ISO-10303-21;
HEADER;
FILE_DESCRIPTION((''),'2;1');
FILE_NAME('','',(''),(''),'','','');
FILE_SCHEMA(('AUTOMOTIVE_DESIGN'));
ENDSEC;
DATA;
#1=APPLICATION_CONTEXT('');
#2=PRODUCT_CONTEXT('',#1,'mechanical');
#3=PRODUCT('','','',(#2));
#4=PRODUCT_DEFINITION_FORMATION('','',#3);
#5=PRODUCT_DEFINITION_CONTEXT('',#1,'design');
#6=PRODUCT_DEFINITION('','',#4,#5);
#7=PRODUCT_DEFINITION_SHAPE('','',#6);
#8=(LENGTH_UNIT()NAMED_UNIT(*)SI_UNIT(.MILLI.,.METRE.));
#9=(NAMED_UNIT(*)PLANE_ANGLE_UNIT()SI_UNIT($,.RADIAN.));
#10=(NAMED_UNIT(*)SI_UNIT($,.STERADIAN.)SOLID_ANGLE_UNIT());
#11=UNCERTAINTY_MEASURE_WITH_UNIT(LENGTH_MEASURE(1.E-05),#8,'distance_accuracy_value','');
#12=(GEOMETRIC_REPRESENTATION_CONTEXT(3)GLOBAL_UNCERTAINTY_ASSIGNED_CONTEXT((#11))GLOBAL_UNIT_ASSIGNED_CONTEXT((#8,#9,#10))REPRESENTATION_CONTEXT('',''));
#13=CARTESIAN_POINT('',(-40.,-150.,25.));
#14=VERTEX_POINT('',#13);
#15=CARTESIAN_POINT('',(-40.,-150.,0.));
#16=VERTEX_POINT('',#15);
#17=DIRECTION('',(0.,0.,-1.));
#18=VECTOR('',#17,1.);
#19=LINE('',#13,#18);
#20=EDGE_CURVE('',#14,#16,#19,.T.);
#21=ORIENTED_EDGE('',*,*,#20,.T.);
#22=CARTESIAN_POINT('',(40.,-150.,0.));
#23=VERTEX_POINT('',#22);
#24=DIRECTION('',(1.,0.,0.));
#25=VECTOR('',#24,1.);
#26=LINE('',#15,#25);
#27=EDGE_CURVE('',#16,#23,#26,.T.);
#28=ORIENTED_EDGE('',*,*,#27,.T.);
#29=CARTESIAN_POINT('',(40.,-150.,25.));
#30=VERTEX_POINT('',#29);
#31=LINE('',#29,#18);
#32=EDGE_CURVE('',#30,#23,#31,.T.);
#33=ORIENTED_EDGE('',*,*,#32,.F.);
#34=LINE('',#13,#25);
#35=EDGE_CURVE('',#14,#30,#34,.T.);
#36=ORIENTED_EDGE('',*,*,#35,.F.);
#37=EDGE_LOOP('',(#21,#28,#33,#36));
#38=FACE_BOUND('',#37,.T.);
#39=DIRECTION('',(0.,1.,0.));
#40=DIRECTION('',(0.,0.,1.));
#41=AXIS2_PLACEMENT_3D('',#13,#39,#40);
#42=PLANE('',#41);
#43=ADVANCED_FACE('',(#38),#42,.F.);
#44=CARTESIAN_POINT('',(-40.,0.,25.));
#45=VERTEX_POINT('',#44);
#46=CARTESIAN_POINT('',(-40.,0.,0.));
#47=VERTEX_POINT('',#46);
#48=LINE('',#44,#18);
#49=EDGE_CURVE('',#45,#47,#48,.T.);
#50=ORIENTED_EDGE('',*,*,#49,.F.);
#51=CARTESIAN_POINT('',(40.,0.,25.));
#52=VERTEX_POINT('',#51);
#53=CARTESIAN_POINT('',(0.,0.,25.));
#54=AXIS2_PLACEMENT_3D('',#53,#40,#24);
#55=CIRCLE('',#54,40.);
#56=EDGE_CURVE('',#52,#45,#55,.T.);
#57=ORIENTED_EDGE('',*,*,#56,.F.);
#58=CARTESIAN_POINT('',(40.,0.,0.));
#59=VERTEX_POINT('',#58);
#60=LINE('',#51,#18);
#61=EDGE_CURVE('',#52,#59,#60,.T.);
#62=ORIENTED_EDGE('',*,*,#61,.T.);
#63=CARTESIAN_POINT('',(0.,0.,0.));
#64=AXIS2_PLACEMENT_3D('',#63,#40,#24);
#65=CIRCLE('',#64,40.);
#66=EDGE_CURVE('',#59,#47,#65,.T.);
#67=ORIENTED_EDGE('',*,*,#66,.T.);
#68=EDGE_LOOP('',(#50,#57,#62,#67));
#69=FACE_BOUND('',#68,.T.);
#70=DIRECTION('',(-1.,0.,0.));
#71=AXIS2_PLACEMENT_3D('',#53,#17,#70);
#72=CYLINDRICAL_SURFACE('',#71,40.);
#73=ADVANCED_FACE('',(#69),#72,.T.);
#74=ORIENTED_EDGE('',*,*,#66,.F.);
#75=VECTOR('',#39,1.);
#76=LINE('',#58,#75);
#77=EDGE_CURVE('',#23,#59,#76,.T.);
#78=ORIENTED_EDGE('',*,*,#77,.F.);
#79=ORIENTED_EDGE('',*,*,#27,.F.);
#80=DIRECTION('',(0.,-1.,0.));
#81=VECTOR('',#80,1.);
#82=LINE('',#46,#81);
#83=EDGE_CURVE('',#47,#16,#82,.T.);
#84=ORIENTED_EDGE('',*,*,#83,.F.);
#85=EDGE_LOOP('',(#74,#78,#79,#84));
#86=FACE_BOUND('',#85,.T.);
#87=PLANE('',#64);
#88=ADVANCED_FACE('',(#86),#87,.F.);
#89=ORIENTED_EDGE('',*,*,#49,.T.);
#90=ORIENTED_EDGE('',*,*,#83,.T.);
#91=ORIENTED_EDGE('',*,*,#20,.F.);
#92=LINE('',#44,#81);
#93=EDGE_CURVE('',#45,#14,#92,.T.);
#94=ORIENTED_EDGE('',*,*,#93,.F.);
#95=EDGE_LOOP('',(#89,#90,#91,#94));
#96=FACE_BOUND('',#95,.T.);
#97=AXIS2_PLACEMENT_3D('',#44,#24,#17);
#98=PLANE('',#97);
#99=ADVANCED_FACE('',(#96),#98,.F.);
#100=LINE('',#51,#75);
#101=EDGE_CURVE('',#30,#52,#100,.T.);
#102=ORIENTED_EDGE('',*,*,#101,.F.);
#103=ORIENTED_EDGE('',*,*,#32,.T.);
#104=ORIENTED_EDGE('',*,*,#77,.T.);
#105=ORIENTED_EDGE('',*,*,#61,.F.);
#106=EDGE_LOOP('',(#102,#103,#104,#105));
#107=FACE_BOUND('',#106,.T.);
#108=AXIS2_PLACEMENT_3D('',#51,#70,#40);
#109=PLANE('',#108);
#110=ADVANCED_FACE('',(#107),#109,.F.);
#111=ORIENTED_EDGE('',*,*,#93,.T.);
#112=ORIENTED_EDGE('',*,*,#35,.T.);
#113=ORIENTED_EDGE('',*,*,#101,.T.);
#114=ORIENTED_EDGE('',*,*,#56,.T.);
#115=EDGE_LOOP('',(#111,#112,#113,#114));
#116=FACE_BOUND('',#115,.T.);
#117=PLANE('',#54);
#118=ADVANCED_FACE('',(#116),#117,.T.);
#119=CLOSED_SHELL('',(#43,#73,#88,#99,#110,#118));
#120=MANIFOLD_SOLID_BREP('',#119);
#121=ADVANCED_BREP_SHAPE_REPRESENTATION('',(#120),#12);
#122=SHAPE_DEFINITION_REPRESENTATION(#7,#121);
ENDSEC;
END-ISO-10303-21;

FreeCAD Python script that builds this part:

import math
import FreeCAD as App
import Part
import Sketcher

V = App.Vector

doc = App.newDocument("Part")
body = doc.addObject("PartDesign::Body", "Body")

# Sketch on XY plane
sketch1 = body.newObject("Sketcher::SketchObject", "Sketch")
sketch1.AttachmentSupport = (doc.getObject("XY_Plane"), [""])
sketch1.MapMode = "FlatFace"
sketch1.addGeometry([
    Part.LineSegment(V(-40, 0, 0), V(-40, -150, 0)),
    Part.LineSegment(V(-40, -150, 0), V(40, -150, 0)),
    Part.LineSegment(V(40, -150, 0), V(40, 0, 0)),
    Part.ArcOfCircle(Part.Circle(V(0, 0, 0), V(0, 0, 1), 40), math.radians(0), math.radians(180)),
], False)
sketch1.addConstraint([
    Sketcher.Constraint("Coincident", 0, 2, 1, 1),
    Sketcher.Constraint("Coincident", 1, 2, 2, 1),
    Sketcher.Constraint("Tangent", 2, 2, 3, 1),
    Sketcher.Constraint("Tangent", 3, 2, 0, 1),
    Sketcher.Constraint("Vertical", 0),
    Sketcher.Constraint("Horizontal", 1),
    Sketcher.Constraint("Vertical", 2),
    Sketcher.Constraint("Coincident", 3, 3, -1, 1),
    Sketcher.Constraint("Radius", 3, 40.0),
    Sketcher.Constraint("DistanceY", 0, 2, 0, 1, 150.0),
])
pad1 = body.newObject("PartDesign::Pad", "Pad")
pad1.Profile = sketch1
pad1.Length = 25

doc.recompute()
